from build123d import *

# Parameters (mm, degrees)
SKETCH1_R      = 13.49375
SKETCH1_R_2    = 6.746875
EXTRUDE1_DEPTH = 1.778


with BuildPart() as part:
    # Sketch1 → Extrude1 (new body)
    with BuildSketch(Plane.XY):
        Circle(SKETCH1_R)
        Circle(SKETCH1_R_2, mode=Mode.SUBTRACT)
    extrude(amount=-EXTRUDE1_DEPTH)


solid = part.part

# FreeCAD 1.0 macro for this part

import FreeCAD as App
import Part
import Sketcher
from FreeCAD import Vector
Q = App.Units.Quantity

doc = App.newDocument("Part")
params = doc.addObject("Spreadsheet::Sheet", "Params")
for row, (alias, value) in enumerate([
    ("sketch1_diameter", "1.0625 in"),
    ("sketch1_diameter2", "0.53125 in"),
    ("pad1_length", "0.07 in"),
], start=1):
    params.set(f"A{row}", alias)
    params.set(f"B{row}", "=" + value)
    params.setAlias(f"B{row}", alias)

body = doc.addObject("PartDesign::Body", "Body")

sketch1 = doc.addObject("Sketcher::SketchObject", "Sketch")
body.addObject(sketch1)
sketch1.AttachmentSupport = (doc.XY_Plane, [""])
sketch1.MapMode = "FlatFace"
sketch1.addGeometry(Part.Circle(Vector(0, 0, 0), Vector(0, 0, 1), 13.49375), False)
sketch1.addGeometry(Part.Circle(Vector(0, 0, 0), Vector(0, 0, 1), 6.746875), False)
sketch1.addConstraint(Sketcher.Constraint("Coincident", 0, 3, -1, 1))
sketch1.addConstraint(Sketcher.Constraint("Coincident", 1, 3, -1, 1))
sketch1.addConstraint(Sketcher.Constraint("Diameter", 0, Q("1.0625 in")))
sketch1.addConstraint(Sketcher.Constraint("Diameter", 1, Q("0.53125 in")))
sketch1.setExpression("Constraints[2]", "Params.sketch1_diameter")
sketch1.setExpression("Constraints[3]", "Params.sketch1_diameter2")
pad1 = doc.addObject("PartDesign::Pad", "Pad")
body.addObject(pad1)
pad1.Profile = sketch1
pad1.setExpression("Length", "Params.pad1_length")
pad1.Reversed = True

doc.recompute()
